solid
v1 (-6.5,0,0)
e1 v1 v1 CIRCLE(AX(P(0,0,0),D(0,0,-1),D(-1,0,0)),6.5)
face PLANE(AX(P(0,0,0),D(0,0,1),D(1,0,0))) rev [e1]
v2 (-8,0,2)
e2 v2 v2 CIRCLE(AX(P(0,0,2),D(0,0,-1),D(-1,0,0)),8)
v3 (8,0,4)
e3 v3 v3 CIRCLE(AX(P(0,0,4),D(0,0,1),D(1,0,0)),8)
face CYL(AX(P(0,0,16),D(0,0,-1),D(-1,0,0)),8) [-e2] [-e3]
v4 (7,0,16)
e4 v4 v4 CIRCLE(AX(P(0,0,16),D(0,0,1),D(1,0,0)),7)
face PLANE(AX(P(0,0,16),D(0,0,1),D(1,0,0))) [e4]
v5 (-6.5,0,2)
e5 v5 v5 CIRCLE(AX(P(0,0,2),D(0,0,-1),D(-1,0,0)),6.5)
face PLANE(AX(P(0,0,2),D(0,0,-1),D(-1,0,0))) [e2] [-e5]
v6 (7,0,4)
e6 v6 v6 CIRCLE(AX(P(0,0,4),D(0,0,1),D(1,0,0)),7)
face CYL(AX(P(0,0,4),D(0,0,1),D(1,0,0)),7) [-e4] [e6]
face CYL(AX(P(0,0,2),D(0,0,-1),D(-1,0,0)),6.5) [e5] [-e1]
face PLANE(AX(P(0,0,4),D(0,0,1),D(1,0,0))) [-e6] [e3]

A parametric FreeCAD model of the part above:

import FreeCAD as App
import Part
import Sketcher
from FreeCAD import Vector
Q = App.Units.Quantity

doc = App.newDocument("Part")
body = doc.addObject("PartDesign::Body", "Body")

# Sketch on XY plane
sketch1 = body.newObject("Sketcher::SketchObject", "Sketch")
sketch1.AttachmentSupport = (doc.getObject("XY_Plane"), [""])
sketch1.MapMode = "FlatFace"
sketch1.addGeometry(Part.Circle(Vector(0, 0, 0), Vector(0, 0, 1), 8), False)
sketch1.addConstraint(Sketcher.Constraint("Coincident", 0, 3, -1, 1))
sketch1.addConstraint(Sketcher.Constraint("Diameter", 0, Q("16 mm")))
pad1 = body.newObject("PartDesign::Pad", "Pad")
pad1.Profile = sketch1
pad1.Length = 16

# Sketch on XY plane
sketch2 = body.newObject("Sketcher::SketchObject", "Sketch001")
sketch2.AttachmentSupport = (doc.getObject("XY_Plane"), [""])
sketch2.MapMode = "FlatFace"
sketch2.AttachmentOffset = App.Placement(Vector(0, 0, 4), App.Rotation())
sketch2.addGeometry(Part.Circle(Vector(0, 0, 0), Vector(0, 0, 1), 8), False)
sketch2.addGeometry(Part.Circle(Vector(0, 0, 0), Vector(0, 0, 1), 7), False)
sketch2.addConstraint(Sketcher.Constraint("Coincident", 0, 3, -1, 1))
sketch2.addConstraint(Sketcher.Constraint("Coincident", 1, 3, -1, 1))
sketch2.addConstraint(Sketcher.Constraint("Diameter", 0, Q("16 mm")))
sketch2.addConstraint(Sketcher.Constraint("Diameter", 1, Q("14 mm")))
pocket1 = body.newObject("PartDesign::Pocket", "Pocket")
pocket1.Profile = sketch2
pocket1.Length = 12
pocket1.Reversed = True

# Sketch on XY plane
sketch3 = body.newObject("Sketcher::SketchObject", "Sketch002")
sketch3.AttachmentSupport = (doc.getObject("XY_Plane"), [""])
sketch3.MapMode = "FlatFace"
sketch3.addGeometry(Part.Circle(Vector(0, 0, 0), Vector(0, 0, 1), 8), False)
sketch3.addGeometry(Part.Circle(Vector(0, 0, 0), Vector(0, 0, 1), 6), False)
sketch3.addConstraint(Sketcher.Constraint("Coincident", 0, 3, -1, 1))
sketch3.addConstraint(Sketcher.Constraint("Coincident", 1, 3, -1, 1))
sketch3.addConstraint(Sketcher.Constraint("Diameter", 0, Q("16 mm")))
sketch3.addConstraint(Sketcher.Constraint("Diameter", 1, Q("13 mm")))
pocket2 = body.newObject("PartDesign::Pocket", "Pocket001")
pocket2.Profile = sketch3
pocket2.Length = 2
pocket2.Reversed = True

doc.recompute()
